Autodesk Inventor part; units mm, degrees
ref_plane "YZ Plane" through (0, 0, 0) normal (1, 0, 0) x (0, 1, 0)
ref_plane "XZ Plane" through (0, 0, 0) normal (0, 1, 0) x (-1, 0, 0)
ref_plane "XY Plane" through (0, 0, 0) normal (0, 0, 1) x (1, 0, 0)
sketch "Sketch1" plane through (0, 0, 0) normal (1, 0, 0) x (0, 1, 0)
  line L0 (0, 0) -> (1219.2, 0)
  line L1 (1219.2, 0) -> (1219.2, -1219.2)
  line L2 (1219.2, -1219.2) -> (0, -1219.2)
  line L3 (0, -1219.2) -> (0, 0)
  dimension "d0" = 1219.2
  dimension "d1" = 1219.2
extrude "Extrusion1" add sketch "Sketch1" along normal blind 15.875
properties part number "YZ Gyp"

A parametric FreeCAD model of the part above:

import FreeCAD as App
import Part
import Sketcher

V = App.Vector
Q = App.Units.Quantity


def add_polygon(sketch, points):
    """Adds a closed chain of lines whose ends are joined by coincident constraints."""
    first, n = sketch.GeometryCount, len(points)
    for a, b in zip(points, points[1:] + points[:1]):
        sketch.addGeometry(Part.LineSegment(App.Vector(*a, 0), App.Vector(*b, 0)), False)
    for i in range(n):
        sketch.addConstraint(Sketcher.Constraint("Coincident", first + i, 2, first + (i + 1) % n, 1))

doc = App.newDocument("Part")
body = doc.addObject("PartDesign::Body", "Body")

# Sketch on YZ plane
sketch1 = body.newObject("Sketcher::SketchObject", "Sketch")
sketch1.AttachmentSupport = (doc.getObject("YZ_Plane"), [""])
sketch1.MapMode = "FlatFace"
add_polygon(sketch1, [(1219, 0), (0, 0), (0, -1219), (1219, -1219)])  # lines 0-3
sketch1.addConstraint(Sketcher.Constraint("Horizontal", 0))
sketch1.addConstraint(Sketcher.Constraint("Vertical", 1))
sketch1.addConstraint(Sketcher.Constraint("Horizontal", 2))
sketch1.addConstraint(Sketcher.Constraint("Vertical", 3))
sketch1.addConstraint(Sketcher.Constraint("Coincident", 0, 2, -1, 1))
sketch1.addConstraint(Sketcher.Constraint("Equal", 2, 1))
sketch1.addConstraint(Sketcher.Constraint("DistanceX", 0, 2, 0, 1, Q("48 in")))
pad1 = body.newObject("PartDesign::Pad", "Pad")
pad1.Profile = sketch1
pad1.Length = Q("0.625 in")

doc.recompute()
